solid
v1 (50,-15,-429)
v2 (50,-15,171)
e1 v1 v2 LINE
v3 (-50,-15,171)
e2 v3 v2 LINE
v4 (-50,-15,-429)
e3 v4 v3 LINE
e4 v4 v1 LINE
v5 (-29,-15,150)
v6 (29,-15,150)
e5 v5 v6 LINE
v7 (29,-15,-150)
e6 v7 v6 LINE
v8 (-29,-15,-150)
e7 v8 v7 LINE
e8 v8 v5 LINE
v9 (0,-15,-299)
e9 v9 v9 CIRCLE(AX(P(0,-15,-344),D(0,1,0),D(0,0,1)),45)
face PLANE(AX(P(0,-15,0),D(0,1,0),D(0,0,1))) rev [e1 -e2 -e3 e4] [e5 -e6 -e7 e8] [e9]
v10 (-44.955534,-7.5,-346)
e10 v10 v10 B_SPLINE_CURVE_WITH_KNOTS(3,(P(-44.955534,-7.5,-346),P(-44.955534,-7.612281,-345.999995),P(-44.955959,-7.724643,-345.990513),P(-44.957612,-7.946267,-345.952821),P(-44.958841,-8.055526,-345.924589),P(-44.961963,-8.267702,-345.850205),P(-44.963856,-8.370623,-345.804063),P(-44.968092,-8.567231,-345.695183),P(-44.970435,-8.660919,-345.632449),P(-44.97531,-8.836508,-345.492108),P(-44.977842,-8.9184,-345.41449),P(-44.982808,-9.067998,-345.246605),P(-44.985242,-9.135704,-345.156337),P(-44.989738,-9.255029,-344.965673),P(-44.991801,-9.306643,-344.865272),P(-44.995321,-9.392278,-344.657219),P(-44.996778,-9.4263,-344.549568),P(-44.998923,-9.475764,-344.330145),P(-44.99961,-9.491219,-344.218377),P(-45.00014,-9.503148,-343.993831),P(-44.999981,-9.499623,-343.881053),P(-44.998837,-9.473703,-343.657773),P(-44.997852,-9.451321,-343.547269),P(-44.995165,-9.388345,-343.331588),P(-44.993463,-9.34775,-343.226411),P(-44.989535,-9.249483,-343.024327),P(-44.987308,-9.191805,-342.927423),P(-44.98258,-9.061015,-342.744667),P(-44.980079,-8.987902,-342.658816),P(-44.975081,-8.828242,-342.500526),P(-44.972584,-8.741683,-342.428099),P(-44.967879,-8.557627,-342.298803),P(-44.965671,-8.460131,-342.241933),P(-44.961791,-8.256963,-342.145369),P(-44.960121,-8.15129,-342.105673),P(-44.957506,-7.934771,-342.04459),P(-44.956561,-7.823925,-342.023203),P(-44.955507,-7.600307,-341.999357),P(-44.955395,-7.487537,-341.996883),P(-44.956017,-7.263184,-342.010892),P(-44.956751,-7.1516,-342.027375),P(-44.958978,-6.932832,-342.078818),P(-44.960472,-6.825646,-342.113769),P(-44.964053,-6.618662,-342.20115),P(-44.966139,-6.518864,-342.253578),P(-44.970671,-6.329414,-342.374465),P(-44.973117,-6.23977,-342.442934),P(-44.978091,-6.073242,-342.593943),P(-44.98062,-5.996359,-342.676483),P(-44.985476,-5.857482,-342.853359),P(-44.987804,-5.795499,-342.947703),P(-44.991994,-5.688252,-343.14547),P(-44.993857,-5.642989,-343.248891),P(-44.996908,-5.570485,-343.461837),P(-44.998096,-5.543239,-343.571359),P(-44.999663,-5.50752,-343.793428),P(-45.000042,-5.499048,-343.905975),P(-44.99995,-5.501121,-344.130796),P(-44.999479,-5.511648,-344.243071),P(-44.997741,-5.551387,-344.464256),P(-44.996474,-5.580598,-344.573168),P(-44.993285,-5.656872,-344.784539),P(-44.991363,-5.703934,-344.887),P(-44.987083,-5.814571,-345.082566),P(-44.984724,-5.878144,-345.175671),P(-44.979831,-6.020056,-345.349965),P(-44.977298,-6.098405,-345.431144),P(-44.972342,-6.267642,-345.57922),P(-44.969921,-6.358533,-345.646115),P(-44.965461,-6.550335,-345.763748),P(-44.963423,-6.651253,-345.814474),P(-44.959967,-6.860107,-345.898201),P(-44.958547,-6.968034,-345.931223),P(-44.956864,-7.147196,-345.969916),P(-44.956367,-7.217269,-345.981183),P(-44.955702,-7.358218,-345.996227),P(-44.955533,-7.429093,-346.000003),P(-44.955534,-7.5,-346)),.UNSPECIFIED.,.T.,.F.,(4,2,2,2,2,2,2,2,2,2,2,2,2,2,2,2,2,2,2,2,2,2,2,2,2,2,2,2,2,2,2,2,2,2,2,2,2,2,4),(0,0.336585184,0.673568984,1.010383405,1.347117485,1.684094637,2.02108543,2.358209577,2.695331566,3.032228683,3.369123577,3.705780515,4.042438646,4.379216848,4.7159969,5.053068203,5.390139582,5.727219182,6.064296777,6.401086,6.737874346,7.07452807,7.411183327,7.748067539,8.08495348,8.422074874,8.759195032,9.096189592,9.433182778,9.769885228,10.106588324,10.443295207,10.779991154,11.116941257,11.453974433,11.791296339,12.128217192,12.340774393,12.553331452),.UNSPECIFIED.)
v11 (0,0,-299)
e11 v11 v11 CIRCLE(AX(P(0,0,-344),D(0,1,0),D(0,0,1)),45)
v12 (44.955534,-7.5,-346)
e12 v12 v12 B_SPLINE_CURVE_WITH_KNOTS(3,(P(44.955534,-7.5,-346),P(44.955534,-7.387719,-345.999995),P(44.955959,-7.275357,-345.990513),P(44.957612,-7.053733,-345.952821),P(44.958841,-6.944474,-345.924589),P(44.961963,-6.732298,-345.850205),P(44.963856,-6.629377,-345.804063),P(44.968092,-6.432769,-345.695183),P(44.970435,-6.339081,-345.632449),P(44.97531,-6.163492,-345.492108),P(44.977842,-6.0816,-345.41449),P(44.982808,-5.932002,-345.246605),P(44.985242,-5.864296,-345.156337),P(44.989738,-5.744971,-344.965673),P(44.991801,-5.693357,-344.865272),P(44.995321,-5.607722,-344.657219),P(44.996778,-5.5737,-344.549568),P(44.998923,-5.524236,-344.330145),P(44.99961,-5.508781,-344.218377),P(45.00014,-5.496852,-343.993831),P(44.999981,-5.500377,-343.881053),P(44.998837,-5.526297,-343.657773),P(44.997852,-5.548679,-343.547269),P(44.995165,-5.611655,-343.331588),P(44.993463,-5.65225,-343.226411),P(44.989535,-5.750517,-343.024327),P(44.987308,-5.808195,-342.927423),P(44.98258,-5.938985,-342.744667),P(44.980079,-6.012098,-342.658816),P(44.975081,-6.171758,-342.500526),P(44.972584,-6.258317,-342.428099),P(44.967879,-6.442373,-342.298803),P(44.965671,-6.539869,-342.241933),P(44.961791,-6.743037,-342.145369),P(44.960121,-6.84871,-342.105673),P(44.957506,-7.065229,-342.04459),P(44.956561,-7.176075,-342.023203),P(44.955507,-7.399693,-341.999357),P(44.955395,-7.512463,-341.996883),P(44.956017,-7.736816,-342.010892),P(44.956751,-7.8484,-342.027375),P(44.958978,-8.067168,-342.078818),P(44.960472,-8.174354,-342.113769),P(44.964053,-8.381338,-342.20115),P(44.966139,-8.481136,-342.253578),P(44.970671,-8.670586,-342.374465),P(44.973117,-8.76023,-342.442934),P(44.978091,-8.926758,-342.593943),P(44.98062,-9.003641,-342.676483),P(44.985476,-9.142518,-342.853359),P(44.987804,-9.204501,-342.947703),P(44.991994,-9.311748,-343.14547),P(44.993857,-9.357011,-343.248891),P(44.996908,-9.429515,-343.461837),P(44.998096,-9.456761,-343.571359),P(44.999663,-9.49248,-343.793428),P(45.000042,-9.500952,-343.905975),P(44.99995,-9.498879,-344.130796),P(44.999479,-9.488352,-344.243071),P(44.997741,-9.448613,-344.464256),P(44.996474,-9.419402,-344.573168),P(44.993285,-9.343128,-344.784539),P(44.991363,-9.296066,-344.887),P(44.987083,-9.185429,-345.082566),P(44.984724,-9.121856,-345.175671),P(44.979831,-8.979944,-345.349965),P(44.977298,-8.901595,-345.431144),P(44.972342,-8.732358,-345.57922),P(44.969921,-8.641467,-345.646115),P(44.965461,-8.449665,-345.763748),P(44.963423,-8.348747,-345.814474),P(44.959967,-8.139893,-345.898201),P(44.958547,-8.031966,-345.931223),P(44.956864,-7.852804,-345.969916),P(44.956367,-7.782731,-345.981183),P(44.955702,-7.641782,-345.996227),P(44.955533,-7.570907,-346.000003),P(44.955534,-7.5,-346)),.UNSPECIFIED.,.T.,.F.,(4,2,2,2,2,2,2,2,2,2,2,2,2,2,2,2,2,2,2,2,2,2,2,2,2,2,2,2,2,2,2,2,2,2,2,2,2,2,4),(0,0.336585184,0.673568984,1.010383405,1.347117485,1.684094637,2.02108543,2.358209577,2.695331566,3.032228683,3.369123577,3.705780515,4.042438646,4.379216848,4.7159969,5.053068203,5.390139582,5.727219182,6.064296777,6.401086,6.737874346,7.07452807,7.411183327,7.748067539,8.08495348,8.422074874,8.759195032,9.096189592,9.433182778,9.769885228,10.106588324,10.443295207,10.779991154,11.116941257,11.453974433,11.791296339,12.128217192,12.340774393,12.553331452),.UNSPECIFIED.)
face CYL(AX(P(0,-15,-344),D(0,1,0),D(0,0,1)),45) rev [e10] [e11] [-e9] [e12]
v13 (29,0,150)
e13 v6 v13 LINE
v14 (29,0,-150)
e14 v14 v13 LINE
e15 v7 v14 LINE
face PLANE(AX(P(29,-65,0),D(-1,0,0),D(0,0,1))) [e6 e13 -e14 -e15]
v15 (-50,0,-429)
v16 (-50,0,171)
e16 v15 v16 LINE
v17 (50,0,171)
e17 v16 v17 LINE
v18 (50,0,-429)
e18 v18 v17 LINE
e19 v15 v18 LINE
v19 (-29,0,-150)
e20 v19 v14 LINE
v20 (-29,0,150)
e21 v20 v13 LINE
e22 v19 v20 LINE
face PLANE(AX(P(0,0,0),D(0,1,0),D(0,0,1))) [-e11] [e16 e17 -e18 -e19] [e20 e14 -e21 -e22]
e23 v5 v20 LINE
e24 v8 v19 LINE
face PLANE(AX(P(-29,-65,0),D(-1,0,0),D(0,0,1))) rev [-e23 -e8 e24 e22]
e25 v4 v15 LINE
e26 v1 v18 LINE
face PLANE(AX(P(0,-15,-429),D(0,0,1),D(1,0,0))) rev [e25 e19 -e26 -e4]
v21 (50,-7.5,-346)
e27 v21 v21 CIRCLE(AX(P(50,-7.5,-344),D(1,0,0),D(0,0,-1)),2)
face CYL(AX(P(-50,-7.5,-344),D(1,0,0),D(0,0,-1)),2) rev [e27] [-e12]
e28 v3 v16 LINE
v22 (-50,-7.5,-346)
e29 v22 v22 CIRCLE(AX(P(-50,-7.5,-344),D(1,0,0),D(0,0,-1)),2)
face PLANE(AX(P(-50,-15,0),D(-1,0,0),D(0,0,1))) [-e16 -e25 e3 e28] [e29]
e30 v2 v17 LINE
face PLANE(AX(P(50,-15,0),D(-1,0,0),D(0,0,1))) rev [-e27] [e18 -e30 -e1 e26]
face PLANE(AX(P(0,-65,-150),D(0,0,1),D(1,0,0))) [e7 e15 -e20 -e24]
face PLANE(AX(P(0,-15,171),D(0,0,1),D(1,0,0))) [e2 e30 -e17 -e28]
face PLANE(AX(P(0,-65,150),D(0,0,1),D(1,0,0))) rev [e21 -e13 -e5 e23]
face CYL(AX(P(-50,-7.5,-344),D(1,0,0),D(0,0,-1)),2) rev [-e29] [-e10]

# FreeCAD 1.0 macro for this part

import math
import FreeCAD as App
import Part
import Sketcher


def add_polygon(sketch, points):
    """Adds a closed chain of lines whose ends are joined by coincident constraints."""
    first, n = sketch.GeometryCount, len(points)
    for a, b in zip(points, points[1:] + points[:1]):
        sketch.addGeometry(Part.LineSegment(App.Vector(*a, 0), App.Vector(*b, 0)), False)
    for i in range(n):
        sketch.addConstraint(Sketcher.Constraint("Coincident", first + i, 2, first + (i + 1) % n, 1))

doc = App.newDocument("Part")
body = doc.addObject("PartDesign::Body", "Body")

# Sketch on XZ plane
sketch1 = body.newObject("Sketcher::SketchObject", "Sketch")
sketch1.AttachmentSupport = (doc.getObject("XZ_Plane"), [""])
sketch1.MapMode = "FlatFace"
add_polygon(sketch1, [(-50, -429), (-50, 171), (50, 171), (50, -429)])  # lines 0-3
sketch1.addConstraint([
    Sketcher.Constraint("Vertical", 0),
    Sketcher.Constraint("Horizontal", 1),
    Sketcher.Constraint("Vertical", 2),
    Sketcher.Constraint("Horizontal", 3),
    Sketcher.Constraint("DistanceX", 1, 1, 1, 2, 100.0),
    Sketcher.Constraint("DistanceY", 0, 1, 0, 2, 600.0),
    Sketcher.Constraint("DistanceX", 0, 2, -1, 1, 50.0),
    Sketcher.Constraint("DistanceY", -1, 1, 0, 2, 171.0),
])
pad1 = body.newObject("PartDesign::Pad", "Pad")
pad1.Profile = sketch1
pad1.Length = 15

# Sketch on XZ plane
sketch2 = body.newObject("Sketcher::SketchObject", "Sketch001")
sketch2.AttachmentSupport = (doc.getObject("XZ_Plane"), [""])
sketch2.MapMode = "FlatFace"
add_polygon(sketch2, [(-29, -150), (-29, 150), (29, 150), (29, -150)])  # lines 0-3
sketch2.addConstraint([
    Sketcher.Constraint("Vertical", 0),
    Sketcher.Constraint("Horizontal", 1),
    Sketcher.Constraint("Vertical", 2),
    Sketcher.Constraint("Horizontal", 3),
    Sketcher.Constraint("Symmetric", 0, 2, 2, 2, -1, 1),
    Sketcher.Constraint("DistanceX", 1, 1, 1, 2, 58.0),
    Sketcher.Constraint("DistanceY", 0, 1, 0, 2, 300.0),
])
pocket1 = body.newObject("PartDesign::Pocket", "Pocket")
pocket1.Profile = sketch2
pocket1.Length = 65
pocket1.Reversed = True

# Sketch on XZ plane
sketch3 = body.newObject("Sketcher::SketchObject", "Sketch002")
sketch3.AttachmentSupport = (doc.getObject("XZ_Plane"), [""])
sketch3.MapMode = "FlatFace"
sketch3.addGeometry(Part.Circle(App.Vector(0, -344, 0), App.Vector(0, 0, 1), 45), False)
sketch3.addConstraint([
    Sketcher.Constraint("PointOnObject", 0, 3, -2),
    Sketcher.Constraint("Diameter", 0, 90.0),
    Sketcher.Constraint("DistanceY", 0, 3, -1, 1, 344.0),
])
pocket2 = body.newObject("PartDesign::Pocket", "Pocket001")
pocket2.Profile = sketch3
pocket2.Type = "ThroughAll"
pocket2.Reversed = True

# Sketch on YZ plane
sketch4 = body.newObject("Sketcher::SketchObject", "Sketch003")
sketch4.AttachmentSupport = (doc.getObject("YZ_Plane"), [""])
sketch4.MapMode = "FlatFace"
sketch4.AttachmentOffset = App.Placement(App.Vector(0, 0, 47.5), App.Rotation())
sketch4.addGeometry([
    Part.ArcOfCircle(Part.Circle(App.Vector(-7.5, -344, 0), App.Vector(0, 0, 1), 2), math.radians(-90), math.radians(0)),
    Part.ArcOfCircle(Part.Circle(App.Vector(-7.5, -344, 0), App.Vector(0, 0, 1), 2), math.radians(0), math.radians(180)),
    Part.ArcOfCircle(Part.Circle(App.Vector(-7.5, -344, 0), App.Vector(0, 0, 1), 2), math.radians(-180), math.radians(-90)),
], False)
sketch4.addConstraint([
    Sketcher.Constraint("Tangent", 0, 2, 1, 1),
    Sketcher.Constraint("Tangent", 1, 2, 2, 1),
    Sketcher.Constraint("Tangent", 2, 2, 0, 1),
    Sketcher.Constraint("Horizontal", 2, 3, 0, 2),
    Sketcher.Constraint("Horizontal", 0, 2, 1, 2),
    Sketcher.Constraint("Vertical", 1, 3, 2, 2),
    Sketcher.Constraint("Radius", 0, 2.0),
    Sketcher.Constraint("DistanceY", 0, 3, -1, 1, 344.0),
    Sketcher.Constraint("DistanceX", 0, 3, -1, 1, 7.5),
])
pocket3 = body.newObject("PartDesign::Pocket", "Pocket002")
pocket3.Profile = sketch4
pocket3.Type = "ThroughAll"
pocket3.Midplane = True

doc.recompute()
